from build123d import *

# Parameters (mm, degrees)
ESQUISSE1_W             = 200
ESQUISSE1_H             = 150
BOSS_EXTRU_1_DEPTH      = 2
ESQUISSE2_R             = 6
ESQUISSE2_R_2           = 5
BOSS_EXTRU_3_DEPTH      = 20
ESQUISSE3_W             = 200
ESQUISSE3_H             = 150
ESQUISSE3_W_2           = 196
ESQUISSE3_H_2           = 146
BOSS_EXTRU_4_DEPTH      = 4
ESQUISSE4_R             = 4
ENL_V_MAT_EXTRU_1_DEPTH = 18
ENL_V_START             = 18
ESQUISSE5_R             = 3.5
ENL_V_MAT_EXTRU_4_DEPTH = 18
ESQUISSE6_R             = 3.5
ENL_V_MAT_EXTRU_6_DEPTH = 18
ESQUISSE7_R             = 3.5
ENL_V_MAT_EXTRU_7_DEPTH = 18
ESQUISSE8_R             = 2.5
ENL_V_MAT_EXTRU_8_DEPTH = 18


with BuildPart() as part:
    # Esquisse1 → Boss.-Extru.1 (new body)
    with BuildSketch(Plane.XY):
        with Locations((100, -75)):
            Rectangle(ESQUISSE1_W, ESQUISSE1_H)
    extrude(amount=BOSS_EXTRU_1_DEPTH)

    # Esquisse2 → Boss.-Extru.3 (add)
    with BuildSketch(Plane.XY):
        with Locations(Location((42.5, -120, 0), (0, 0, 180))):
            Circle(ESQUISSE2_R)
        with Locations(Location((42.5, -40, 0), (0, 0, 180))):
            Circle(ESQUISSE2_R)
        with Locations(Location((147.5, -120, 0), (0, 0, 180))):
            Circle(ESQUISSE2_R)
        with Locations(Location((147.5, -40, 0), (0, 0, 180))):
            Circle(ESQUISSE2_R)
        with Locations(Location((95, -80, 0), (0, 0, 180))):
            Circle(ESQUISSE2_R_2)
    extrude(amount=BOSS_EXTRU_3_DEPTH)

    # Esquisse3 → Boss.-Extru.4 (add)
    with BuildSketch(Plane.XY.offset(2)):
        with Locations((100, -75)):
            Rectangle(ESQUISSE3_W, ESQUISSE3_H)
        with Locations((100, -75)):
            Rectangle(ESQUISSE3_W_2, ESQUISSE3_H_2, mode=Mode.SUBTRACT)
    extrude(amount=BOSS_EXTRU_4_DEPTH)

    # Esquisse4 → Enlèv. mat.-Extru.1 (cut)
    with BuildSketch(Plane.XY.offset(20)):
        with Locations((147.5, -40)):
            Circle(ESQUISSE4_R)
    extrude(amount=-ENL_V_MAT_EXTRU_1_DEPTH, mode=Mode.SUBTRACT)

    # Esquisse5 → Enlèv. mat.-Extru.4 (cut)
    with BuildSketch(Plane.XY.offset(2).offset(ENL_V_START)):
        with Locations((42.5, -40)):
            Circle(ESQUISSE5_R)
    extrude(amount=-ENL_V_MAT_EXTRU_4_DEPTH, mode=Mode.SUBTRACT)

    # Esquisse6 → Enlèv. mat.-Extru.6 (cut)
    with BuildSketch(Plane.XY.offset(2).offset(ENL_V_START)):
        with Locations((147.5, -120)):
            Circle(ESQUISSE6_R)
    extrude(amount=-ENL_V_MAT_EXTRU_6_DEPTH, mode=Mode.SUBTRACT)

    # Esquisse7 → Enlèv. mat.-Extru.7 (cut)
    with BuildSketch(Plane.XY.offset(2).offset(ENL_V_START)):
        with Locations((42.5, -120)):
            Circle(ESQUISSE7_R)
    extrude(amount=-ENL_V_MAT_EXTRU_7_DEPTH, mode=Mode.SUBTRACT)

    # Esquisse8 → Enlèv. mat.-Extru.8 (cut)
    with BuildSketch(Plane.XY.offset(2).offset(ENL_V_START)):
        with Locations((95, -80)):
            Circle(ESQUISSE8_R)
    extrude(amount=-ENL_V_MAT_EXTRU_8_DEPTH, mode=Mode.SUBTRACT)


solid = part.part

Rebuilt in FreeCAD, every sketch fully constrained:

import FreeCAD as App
import Part
import Sketcher
from FreeCAD import Vector


def add_polygon(sketch, points):
    """Adds a closed chain of lines whose ends are joined by coincident constraints."""
    first, n = sketch.GeometryCount, len(points)
    for a, b in zip(points, points[1:] + points[:1]):
        sketch.addGeometry(Part.LineSegment(App.Vector(*a, 0), App.Vector(*b, 0)), False)
    for i in range(n):
        sketch.addConstraint(Sketcher.Constraint("Coincident", first + i, 2, first + (i + 1) % n, 1))

doc = App.newDocument("Part")
body = doc.addObject("PartDesign::Body", "Body")

# Sketch on XY plane
sketch1 = body.newObject("Sketcher::SketchObject", "Sketch")
sketch1.AttachmentSupport = (doc.getObject("XY_Plane"), [""])
sketch1.MapMode = "FlatFace"
add_polygon(sketch1, [(0, 0), (0, -150), (200, -150), (200, 0)])  # lines 0-3
sketch1.addConstraint([
    Sketcher.Constraint("Vertical", 0),
    Sketcher.Constraint("Horizontal", 1),
    Sketcher.Constraint("Vertical", 2),
    Sketcher.Constraint("Horizontal", 3),
    Sketcher.Constraint("Coincident", 3, 2, -1, 1),
    Sketcher.Constraint("DistanceX", 1, 1, 1, 2, 200.0),
    Sketcher.Constraint("DistanceY", 0, 2, 0, 1, 150.0),
])
pad1 = body.newObject("PartDesign::Pad", "Pad")
pad1.Profile = sketch1
pad1.Length = 2

# Sketch on XY plane
sketch2 = body.newObject("Sketcher::SketchObject", "Sketch001")
sketch2.AttachmentSupport = (doc.getObject("XY_Plane"), [""])
sketch2.MapMode = "FlatFace"
sketch2.addGeometry([
    Part.Circle(Vector(42.5, -120, 0), Vector(0, 0, 1), 6),  # 0
    Part.Circle(Vector(42.5, -40, 0), Vector(0, 0, 1), 6),  # 1
    Part.Circle(Vector(147.5, -120, 0), Vector(0, 0, 1), 6),  # 2
    Part.Circle(Vector(147.5, -40, 0), Vector(0, 0, 1), 6),  # 3
    Part.Circle(Vector(95, -80, 0), Vector(0, 0, 1), 5),  # 4
], False)
sketch2.addConstraint([
    Sketcher.Constraint("Equal", 0, 1),
    Sketcher.Constraint("Equal", 1, 2),
    Sketcher.Constraint("Equal", 2, 3),
    Sketcher.Constraint("Horizontal", 0, 3, 2, 3),
    Sketcher.Constraint("Horizontal", 1, 3, 3, 3),
    Sketcher.Constraint("Vertical", 0, 3, 1, 3),
    Sketcher.Constraint("Vertical", 2, 3, 3, 3),
    Sketcher.Constraint("Diameter", 0, 12.0),
    Sketcher.Constraint("Diameter", 4, 10.0),
    Sketcher.Constraint("DistanceY", 0, 3, -1, 1, 120.0),
    Sketcher.Constraint("DistanceY", 1, 3, -1, 1, 40.0),
    Sketcher.Constraint("DistanceX", -1, 1, 4, 3, 95.0),
    Sketcher.Constraint("DistanceY", 4, 3, -1, 1, 80.0),
    Sketcher.Constraint("DistanceX", 0, 3, 2, 3, 105.0),
    Sketcher.Constraint("DistanceX", -1, 1, 0, 3, 42.5),
])
pad2 = body.newObject("PartDesign::Pad", "Pad001")
pad2.Profile = sketch2
pad2.Length = 20

# Sketch on XY plane
sketch3 = body.newObject("Sketcher::SketchObject", "Sketch002")
sketch3.AttachmentSupport = (doc.getObject("XY_Plane"), [""])
sketch3.MapMode = "FlatFace"
sketch3.AttachmentOffset = App.Placement(Vector(0, 0, 2), App.Rotation())
add_polygon(sketch3, [(0, 0), (0, -150), (200, -150), (200, 0)])  # lines 0-3
add_polygon(sketch3, [(198, -148), (2, -148), (2, -2), (198, -2)])  # lines 4-7
sketch3.addConstraint([
    Sketcher.Constraint("Vertical", 0),
    Sketcher.Constraint("Horizontal", 1),
    Sketcher.Constraint("Vertical", 2),
    Sketcher.Constraint("Horizontal", 3),
    Sketcher.Constraint("Horizontal", 4),
    Sketcher.Constraint("Vertical", 5),
    Sketcher.Constraint("Horizontal", 6),
    Sketcher.Constraint("Vertical", 7),
    Sketcher.Constraint("Coincident", 3, 2, -1, 1),
    Sketcher.Constraint("DistanceX", 1, 1, 1, 2, 200.0),
    Sketcher.Constraint("DistanceX", 4, 2, 4, 1, 196.0),
    Sketcher.Constraint("DistanceY", 0, 2, 0, 1, 150.0),
    Sketcher.Constraint("DistanceY", 5, 1, 5, 2, 146.0),
    Sketcher.Constraint("DistanceX", -1, 1, 4, 2, 2.0),
    Sketcher.Constraint("DistanceY", 4, 2, -1, 1, 148.0),
])
pad3 = body.newObject("PartDesign::Pad", "Pad002")
pad3.Profile = sketch3
pad3.Length = 4

# Sketch on XY plane
sketch4 = body.newObject("Sketcher::SketchObject", "Sketch003")
sketch4.AttachmentSupport = (doc.getObject("XY_Plane"), [""])
sketch4.MapMode = "FlatFace"
sketch4.AttachmentOffset = App.Placement(Vector(0, 0, 20), App.Rotation())
sketch4.addGeometry(Part.Circle(Vector(147.5, -40, 0), Vector(0, 0, 1), 4), False)
sketch4.addConstraint([
    Sketcher.Constraint("Diameter", 0, 8.0),
    Sketcher.Constraint("DistanceY", 0, 3, -1, 1, 40.0),
    Sketcher.Constraint("DistanceX", -1, 1, 0, 3, 147.5),
])
pocket1 = body.newObject("PartDesign::Pocket", "Pocket")
pocket1.Profile = sketch4
pocket1.Length = 18

# Sketch on XY plane
sketch5 = body.newObject("Sketcher::SketchObject", "Sketch004")
sketch5.AttachmentSupport = (doc.getObject("XY_Plane"), [""])
sketch5.MapMode = "FlatFace"
sketch5.AttachmentOffset = App.Placement(Vector(0, 0, 20), App.Rotation())
sketch5.addGeometry(Part.Circle(Vector(42.5, -40, 0), Vector(0, 0, 1), 3.5), False)
sketch5.addConstraint([
    Sketcher.Constraint("Diameter", 0, 7.0),
    Sketcher.Constraint("DistanceY", 0, 3, -1, 1, 40.0),
    Sketcher.Constraint("DistanceX", -1, 1, 0, 3, 42.5),
])
pocket2 = body.newObject("PartDesign::Pocket", "Pocket001")
pocket2.Profile = sketch5
pocket2.Length = 18

# Sketch on XY plane
sketch6 = body.newObject("Sketcher::SketchObject", "Sketch005")
sketch6.AttachmentSupport = (doc.getObject("XY_Plane"), [""])
sketch6.MapMode = "FlatFace"
sketch6.AttachmentOffset = App.Placement(Vector(0, 0, 20), App.Rotation())
sketch6.addGeometry(Part.Circle(Vector(147.5, -120, 0), Vector(0, 0, 1), 3.5), False)
sketch6.addConstraint([
    Sketcher.Constraint("Diameter", 0, 7.0),
    Sketcher.Constraint("DistanceY", 0, 3, -1, 1, 120.0),
    Sketcher.Constraint("DistanceX", -1, 1, 0, 3, 147.5),
])
pocket3 = body.newObject("PartDesign::Pocket", "Pocket002")
pocket3.Profile = sketch6
pocket3.Length = 18

# Sketch on XY plane
sketch7 = body.newObject("Sketcher::SketchObject", "Sketch006")
sketch7.AttachmentSupport = (doc.getObject("XY_Plane"), [""])
sketch7.MapMode = "FlatFace"
sketch7.AttachmentOffset = App.Placement(Vector(0, 0, 20), App.Rotation())
sketch7.addGeometry(Part.Circle(Vector(42.5, -120, 0), Vector(0, 0, 1), 3.5), False)
sketch7.addConstraint([
    Sketcher.Constraint("Diameter", 0, 7.0),
    Sketcher.Constraint("DistanceY", 0, 3, -1, 1, 120.0),
    Sketcher.Constraint("DistanceX", -1, 1, 0, 3, 42.5),
])
pocket4 = body.newObject("PartDesign::Pocket", "Pocket003")
pocket4.Profile = sketch7
pocket4.Length = 18

# Sketch on XY plane
sketch8 = body.newObject("Sketcher::SketchObject", "Sketch007")
sketch8.AttachmentSupport = (doc.getObject("XY_Plane"), [""])
sketch8.MapMode = "FlatFace"
sketch8.AttachmentOffset = App.Placement(Vector(0, 0, 20), App.Rotation())
sketch8.addGeometry(Part.Circle(Vector(95, -80, 0), Vector(0, 0, 1), 2.5), False)
sketch8.addConstraint([
    Sketcher.Constraint("Diameter", 0, 5.0),
    Sketcher.Constraint("DistanceX", -1, 1, 0, 3, 95.0),
    Sketcher.Constraint("DistanceY", 0, 3, -1, 1, 80.0),
])
pocket5 = body.newObject("PartDesign::Pocket", "Pocket004")
pocket5.Profile = sketch8
pocket5.Length = 18

doc.recompute()
